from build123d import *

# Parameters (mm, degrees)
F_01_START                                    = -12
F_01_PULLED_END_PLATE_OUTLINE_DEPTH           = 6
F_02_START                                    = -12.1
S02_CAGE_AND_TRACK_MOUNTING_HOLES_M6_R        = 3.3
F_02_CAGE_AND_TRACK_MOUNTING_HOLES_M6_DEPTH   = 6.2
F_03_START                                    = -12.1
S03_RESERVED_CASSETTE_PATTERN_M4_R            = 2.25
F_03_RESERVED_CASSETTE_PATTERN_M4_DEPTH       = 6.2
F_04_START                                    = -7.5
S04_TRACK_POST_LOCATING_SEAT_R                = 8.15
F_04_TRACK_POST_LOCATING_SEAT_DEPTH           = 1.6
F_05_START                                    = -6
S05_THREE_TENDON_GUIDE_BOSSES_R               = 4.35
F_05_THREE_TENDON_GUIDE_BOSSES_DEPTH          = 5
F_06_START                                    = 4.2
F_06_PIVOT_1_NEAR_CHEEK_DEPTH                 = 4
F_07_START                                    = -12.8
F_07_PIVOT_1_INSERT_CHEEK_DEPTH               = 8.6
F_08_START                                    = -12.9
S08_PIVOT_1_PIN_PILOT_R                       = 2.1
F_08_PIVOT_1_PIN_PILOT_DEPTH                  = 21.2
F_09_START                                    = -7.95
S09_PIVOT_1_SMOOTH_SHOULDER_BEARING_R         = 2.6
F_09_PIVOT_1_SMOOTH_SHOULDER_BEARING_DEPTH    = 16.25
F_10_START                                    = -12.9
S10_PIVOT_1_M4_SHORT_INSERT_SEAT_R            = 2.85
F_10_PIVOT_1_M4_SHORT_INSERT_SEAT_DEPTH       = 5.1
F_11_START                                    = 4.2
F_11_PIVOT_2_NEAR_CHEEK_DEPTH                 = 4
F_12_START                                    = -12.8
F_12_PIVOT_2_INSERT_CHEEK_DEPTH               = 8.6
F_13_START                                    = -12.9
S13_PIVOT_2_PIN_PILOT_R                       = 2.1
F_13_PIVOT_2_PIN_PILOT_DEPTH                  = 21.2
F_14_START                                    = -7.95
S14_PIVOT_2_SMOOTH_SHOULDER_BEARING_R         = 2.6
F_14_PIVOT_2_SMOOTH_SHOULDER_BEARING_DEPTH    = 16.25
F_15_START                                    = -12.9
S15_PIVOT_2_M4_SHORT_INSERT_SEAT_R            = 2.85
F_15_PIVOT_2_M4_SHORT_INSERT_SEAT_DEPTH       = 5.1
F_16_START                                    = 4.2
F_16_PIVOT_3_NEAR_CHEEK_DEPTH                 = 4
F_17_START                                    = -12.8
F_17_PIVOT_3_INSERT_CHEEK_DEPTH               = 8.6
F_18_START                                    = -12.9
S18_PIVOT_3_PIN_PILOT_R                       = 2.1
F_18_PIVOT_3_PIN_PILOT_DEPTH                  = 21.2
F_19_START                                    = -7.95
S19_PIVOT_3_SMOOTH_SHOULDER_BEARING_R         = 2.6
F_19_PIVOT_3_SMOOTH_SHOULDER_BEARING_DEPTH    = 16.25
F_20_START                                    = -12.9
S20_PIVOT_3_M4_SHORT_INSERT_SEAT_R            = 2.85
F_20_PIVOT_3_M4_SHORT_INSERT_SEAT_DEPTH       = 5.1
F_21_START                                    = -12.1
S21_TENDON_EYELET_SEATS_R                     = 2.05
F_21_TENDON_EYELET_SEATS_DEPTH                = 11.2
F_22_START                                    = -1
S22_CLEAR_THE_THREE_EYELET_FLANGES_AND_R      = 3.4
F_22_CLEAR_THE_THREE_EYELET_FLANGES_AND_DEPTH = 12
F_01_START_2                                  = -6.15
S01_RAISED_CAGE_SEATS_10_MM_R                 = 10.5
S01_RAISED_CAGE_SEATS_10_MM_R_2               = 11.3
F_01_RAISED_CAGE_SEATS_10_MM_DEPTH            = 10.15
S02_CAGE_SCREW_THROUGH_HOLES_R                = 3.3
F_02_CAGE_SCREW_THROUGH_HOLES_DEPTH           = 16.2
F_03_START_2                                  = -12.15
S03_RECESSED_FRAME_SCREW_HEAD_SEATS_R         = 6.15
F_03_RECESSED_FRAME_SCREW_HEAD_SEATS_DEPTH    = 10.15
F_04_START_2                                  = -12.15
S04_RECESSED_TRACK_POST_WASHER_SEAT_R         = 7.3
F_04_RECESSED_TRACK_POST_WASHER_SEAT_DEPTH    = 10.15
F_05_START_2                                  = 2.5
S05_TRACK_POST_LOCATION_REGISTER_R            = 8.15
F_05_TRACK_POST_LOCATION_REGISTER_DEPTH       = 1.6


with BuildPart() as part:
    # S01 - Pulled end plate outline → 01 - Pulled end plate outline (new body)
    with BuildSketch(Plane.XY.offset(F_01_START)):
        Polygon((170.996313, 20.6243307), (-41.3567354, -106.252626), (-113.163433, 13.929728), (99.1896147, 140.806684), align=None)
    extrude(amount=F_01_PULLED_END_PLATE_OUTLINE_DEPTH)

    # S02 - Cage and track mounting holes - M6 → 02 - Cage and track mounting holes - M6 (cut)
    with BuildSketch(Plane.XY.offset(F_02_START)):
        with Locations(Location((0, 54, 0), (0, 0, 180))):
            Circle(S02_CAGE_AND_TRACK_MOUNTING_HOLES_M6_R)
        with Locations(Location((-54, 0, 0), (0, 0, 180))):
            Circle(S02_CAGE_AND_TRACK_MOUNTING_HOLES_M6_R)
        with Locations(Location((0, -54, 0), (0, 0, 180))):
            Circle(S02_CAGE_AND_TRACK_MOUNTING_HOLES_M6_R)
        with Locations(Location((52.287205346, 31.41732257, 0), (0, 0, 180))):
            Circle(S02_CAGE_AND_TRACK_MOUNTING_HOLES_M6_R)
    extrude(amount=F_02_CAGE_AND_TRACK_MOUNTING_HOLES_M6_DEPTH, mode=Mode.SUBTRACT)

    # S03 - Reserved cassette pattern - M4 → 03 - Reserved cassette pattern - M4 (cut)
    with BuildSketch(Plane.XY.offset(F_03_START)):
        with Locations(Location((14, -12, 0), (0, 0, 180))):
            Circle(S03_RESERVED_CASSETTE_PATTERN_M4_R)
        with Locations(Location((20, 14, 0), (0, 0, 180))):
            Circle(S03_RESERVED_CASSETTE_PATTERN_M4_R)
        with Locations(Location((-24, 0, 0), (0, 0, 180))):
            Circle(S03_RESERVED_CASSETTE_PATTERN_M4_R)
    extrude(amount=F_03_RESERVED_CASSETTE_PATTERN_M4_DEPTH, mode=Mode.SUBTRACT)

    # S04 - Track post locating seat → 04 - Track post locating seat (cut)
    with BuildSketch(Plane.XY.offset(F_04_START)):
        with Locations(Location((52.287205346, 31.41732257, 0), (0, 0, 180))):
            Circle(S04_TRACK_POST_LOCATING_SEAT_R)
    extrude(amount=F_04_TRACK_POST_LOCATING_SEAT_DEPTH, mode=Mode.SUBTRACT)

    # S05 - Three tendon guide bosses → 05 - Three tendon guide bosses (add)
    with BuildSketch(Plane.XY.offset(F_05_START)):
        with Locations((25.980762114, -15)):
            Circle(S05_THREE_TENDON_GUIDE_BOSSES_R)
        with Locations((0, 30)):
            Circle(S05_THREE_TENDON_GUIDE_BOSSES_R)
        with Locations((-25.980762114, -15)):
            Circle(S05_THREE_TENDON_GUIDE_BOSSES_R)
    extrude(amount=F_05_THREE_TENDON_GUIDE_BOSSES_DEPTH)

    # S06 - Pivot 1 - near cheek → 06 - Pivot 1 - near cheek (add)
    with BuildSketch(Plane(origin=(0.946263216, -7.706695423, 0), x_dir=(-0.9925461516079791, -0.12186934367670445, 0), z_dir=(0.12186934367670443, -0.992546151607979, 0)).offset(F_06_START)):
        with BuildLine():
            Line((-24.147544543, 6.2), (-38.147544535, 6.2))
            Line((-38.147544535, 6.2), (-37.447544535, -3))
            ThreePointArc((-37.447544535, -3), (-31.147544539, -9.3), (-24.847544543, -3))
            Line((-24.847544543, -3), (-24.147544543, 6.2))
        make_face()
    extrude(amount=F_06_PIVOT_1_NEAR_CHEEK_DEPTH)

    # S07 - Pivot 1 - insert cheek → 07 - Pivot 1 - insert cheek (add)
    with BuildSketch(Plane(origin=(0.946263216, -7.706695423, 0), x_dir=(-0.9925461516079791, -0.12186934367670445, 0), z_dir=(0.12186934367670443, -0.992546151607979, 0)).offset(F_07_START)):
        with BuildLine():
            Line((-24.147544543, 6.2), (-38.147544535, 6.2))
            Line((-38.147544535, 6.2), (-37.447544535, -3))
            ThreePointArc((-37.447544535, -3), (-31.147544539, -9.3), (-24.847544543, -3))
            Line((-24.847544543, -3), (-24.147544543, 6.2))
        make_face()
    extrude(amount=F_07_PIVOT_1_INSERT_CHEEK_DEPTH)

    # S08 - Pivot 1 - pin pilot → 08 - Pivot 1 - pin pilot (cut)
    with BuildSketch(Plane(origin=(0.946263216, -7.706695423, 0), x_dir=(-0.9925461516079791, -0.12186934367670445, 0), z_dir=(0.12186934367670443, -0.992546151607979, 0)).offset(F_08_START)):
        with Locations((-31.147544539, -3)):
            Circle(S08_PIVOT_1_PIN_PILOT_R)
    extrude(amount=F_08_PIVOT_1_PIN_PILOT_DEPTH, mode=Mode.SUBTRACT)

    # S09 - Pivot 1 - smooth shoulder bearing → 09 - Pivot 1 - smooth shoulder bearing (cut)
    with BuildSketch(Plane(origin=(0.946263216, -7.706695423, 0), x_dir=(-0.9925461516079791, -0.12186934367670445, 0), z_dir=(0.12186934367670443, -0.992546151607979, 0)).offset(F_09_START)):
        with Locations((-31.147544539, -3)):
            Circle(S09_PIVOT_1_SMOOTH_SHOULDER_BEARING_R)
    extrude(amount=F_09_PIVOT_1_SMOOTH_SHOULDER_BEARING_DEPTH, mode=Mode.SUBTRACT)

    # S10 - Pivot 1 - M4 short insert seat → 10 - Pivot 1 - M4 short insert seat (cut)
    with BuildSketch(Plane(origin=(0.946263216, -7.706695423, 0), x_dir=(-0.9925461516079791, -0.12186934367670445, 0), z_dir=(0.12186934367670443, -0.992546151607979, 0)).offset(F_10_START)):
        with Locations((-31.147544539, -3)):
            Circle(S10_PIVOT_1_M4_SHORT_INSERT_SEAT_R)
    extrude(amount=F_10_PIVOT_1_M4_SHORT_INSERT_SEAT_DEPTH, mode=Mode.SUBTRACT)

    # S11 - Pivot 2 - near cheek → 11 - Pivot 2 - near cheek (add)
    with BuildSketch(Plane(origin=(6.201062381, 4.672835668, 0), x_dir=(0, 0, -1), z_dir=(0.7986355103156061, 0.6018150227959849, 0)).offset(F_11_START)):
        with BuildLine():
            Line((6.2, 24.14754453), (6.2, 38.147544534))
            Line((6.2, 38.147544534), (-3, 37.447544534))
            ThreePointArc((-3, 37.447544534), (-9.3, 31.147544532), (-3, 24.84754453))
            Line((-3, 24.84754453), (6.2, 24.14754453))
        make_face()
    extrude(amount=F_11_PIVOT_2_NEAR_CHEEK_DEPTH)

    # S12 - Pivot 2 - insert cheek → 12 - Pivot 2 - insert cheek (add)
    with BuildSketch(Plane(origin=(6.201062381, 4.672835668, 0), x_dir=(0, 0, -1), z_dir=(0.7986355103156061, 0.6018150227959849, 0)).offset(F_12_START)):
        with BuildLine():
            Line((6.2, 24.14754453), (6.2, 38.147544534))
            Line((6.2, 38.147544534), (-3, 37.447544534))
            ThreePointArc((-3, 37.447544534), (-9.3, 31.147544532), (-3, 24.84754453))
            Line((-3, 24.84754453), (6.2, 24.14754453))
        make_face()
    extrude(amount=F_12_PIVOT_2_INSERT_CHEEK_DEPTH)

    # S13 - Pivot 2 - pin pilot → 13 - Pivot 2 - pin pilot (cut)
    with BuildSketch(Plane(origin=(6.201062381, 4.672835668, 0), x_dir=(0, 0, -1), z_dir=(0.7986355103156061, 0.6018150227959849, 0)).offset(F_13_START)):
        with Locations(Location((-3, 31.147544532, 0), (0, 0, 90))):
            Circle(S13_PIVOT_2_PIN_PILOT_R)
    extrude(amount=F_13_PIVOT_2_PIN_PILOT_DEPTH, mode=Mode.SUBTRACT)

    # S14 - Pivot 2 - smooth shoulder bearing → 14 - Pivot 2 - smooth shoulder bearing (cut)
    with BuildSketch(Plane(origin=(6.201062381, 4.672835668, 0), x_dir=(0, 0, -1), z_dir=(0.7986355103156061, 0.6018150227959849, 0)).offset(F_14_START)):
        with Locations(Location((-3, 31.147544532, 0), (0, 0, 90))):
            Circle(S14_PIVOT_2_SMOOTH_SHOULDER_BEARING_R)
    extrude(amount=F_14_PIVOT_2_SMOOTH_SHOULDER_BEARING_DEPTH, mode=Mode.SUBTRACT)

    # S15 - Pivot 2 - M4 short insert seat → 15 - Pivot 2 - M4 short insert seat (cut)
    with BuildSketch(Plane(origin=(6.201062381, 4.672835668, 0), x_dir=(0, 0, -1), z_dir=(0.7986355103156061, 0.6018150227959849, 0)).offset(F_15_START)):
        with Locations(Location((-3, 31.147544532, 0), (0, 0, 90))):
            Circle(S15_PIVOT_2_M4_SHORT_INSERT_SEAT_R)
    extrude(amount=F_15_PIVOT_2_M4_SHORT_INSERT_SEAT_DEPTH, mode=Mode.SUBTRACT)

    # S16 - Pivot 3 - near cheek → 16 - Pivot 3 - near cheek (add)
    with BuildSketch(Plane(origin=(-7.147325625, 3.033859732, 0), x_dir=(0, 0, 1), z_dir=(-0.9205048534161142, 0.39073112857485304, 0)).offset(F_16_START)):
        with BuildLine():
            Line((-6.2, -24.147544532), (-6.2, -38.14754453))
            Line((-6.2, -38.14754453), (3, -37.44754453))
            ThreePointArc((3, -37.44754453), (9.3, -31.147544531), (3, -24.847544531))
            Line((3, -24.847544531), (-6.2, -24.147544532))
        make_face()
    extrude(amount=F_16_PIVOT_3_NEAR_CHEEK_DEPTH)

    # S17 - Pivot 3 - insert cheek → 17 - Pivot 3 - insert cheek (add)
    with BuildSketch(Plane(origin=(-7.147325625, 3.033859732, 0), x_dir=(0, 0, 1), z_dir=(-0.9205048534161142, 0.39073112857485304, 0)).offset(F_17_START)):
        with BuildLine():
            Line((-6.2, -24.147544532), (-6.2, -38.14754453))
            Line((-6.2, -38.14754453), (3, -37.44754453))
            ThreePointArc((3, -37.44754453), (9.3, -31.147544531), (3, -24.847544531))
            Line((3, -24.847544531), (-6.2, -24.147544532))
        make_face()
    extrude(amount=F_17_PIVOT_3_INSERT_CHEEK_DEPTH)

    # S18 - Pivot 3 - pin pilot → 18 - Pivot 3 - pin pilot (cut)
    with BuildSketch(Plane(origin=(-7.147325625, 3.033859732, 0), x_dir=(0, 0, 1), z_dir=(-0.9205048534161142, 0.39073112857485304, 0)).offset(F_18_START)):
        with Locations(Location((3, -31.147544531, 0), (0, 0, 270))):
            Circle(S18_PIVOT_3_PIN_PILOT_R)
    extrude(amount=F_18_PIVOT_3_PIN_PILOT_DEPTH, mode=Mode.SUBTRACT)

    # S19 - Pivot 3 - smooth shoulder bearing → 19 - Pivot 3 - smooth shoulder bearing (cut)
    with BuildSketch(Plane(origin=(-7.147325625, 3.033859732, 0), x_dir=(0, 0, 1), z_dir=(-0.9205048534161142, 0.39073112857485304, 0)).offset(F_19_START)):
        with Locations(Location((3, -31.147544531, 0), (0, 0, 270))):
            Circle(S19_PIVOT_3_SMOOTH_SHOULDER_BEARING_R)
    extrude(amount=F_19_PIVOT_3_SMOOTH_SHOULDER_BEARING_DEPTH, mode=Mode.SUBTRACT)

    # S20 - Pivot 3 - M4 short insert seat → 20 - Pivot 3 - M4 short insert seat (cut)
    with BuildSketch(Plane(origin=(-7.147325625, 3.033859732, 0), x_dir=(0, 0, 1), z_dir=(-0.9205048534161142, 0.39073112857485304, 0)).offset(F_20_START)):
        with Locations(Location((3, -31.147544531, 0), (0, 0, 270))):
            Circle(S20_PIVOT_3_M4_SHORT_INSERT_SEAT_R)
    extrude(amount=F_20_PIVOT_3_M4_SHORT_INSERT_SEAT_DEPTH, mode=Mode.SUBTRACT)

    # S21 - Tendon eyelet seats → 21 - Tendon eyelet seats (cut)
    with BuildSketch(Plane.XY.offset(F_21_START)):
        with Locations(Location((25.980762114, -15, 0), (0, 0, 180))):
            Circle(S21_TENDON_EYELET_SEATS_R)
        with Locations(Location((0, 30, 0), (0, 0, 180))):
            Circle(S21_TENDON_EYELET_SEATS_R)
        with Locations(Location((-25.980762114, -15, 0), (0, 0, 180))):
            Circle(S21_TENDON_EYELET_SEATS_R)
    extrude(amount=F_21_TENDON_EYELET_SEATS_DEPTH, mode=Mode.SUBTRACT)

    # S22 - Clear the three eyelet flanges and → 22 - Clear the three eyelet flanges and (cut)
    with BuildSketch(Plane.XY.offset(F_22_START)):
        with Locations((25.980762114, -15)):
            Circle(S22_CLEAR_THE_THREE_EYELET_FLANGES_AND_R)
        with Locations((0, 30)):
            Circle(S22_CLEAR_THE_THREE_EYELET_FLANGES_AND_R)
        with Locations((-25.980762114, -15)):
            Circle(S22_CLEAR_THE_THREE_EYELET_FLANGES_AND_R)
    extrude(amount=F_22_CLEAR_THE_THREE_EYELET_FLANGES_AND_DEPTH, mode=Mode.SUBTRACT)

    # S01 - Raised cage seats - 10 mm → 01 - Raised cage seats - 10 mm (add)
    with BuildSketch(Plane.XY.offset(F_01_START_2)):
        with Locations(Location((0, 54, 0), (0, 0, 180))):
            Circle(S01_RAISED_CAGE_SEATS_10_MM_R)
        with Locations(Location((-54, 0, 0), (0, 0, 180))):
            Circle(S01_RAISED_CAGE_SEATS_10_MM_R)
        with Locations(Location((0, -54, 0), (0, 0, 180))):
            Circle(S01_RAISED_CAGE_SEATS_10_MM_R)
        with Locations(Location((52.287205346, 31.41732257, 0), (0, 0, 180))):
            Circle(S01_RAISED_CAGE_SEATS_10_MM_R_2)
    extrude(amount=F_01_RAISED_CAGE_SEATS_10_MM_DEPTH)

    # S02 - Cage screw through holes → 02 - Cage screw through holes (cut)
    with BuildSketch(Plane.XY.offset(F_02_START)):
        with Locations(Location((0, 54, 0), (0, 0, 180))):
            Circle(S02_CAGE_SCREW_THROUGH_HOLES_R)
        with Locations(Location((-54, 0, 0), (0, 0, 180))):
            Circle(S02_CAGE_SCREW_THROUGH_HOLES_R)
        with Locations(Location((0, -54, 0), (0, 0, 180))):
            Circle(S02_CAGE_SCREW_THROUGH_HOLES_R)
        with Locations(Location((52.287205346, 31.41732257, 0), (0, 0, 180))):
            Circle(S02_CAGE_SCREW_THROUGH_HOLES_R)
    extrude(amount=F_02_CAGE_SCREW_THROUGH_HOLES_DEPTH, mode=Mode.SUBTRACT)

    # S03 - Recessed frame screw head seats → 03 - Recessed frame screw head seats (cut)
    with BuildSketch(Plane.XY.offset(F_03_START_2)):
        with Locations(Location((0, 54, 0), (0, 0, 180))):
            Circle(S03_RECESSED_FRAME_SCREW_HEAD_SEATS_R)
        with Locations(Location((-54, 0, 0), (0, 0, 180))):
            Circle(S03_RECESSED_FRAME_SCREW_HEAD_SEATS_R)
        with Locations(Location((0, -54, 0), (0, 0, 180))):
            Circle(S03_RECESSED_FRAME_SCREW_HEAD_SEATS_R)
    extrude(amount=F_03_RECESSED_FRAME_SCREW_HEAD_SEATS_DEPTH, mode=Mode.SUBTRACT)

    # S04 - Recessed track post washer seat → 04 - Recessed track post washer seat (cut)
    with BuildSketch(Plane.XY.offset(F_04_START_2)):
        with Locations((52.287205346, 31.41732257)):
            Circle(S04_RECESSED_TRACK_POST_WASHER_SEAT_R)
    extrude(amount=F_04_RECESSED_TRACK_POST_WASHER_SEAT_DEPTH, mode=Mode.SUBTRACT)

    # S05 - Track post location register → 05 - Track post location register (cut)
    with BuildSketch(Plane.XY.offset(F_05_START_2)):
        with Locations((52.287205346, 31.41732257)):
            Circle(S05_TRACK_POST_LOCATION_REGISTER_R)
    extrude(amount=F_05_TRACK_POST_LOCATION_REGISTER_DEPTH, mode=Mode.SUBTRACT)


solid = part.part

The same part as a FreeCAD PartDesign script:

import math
import FreeCAD as App
import Part
import Sketcher
from FreeCAD import Vector


def add_polygon(sketch, points):
    """Adds a closed chain of lines whose ends are joined by coincident constraints."""
    first, n = sketch.GeometryCount, len(points)
    for a, b in zip(points, points[1:] + points[:1]):
        sketch.addGeometry(Part.LineSegment(App.Vector(*a, 0), App.Vector(*b, 0)), False)
    for i in range(n):
        sketch.addConstraint(Sketcher.Constraint("Coincident", first + i, 2, first + (i + 1) % n, 1))

doc = App.newDocument("Part")
body = doc.addObject("PartDesign::Body", "Body")

# Sketch on XY plane
sketch1 = doc.addObject("Sketcher::SketchObject", "Sketch")
body.addObject(sketch1)
sketch1.AttachmentSupport = (doc.XY_Plane, [""])
sketch1.MapMode = "FlatFace"
sketch1.AttachmentOffset = App.Placement(Vector(0, 0, -12), App.Rotation())
add_polygon(sketch1, [(-41.356735, -106.252626), (170.996313, 20.624331), (99.189615, 140.806684), (-113.163433, 13.929728)])  # lines 0-3
sketch1.addConstraint([
    Sketcher.Constraint("Perpendicular", 0, 1),
    Sketcher.Constraint("Perpendicular", 1, 2),
    Sketcher.Constraint("Perpendicular", 2, 3),
    Sketcher.Constraint("Distance", 1, 140.0),
    Sketcher.Constraint("DistanceX", 1, 2, 0, 2, 71.806698),
    Sketcher.Constraint("DistanceY", -1, 1, 0, 2, 20.624331),
    Sketcher.Constraint("DistanceY", -1, 1, 2, 2, 13.929728),
    Sketcher.Constraint("DistanceX", -1, 1, 0, 2, 170.996313),
])
pad1 = doc.addObject("PartDesign::Pad", "Pad")
body.addObject(pad1)
pad1.Profile = sketch1
pad1.Length = 6

# Sketch on XY plane
sketch2 = doc.addObject("Sketcher::SketchObject", "Sketch001")
body.addObject(sketch2)
sketch2.AttachmentSupport = (doc.XY_Plane, [""])
sketch2.MapMode = "FlatFace"
sketch2.AttachmentOffset = App.Placement(Vector(0, 0, -12.1), App.Rotation())
sketch2.addGeometry([
    Part.Circle(Vector(0, 54, 0), Vector(0, 0, 1), 3.3),
    Part.Circle(Vector(-54, 0, 0), Vector(0, 0, 1), 3.3),
    Part.Circle(Vector(0, -54, 0), Vector(0, 0, 1), 3.3),
    Part.Circle(Vector(52.287205, 31.417323, 0), Vector(0, 0, 1), 3.3),
], False)
sketch2.addConstraint([
    Sketcher.Constraint("Equal", 0, 1),
    Sketcher.Constraint("Equal", 1, 2),
    Sketcher.Constraint("Equal", 2, 3),
    Sketcher.Constraint("Symmetric", 0, 3, 2, 3, -1, 1),
    Sketcher.Constraint("PointOnObject", 0, 3, -2),
    Sketcher.Constraint("PointOnObject", 1, 3, -1),
    Sketcher.Constraint("Diameter", 0, 6.6),
    Sketcher.Constraint("DistanceY", -1, 1, 0, 3, 54.0),
    Sketcher.Constraint("DistanceX", 1, 3, -1, 1, 54.0),
    Sketcher.Constraint("DistanceX", -1, 1, 3, 3, 52.287205),
    Sketcher.Constraint("DistanceY", -1, 1, 3, 3, 31.417323),
])
pocket1 = doc.addObject("PartDesign::Pocket", "Pocket")
body.addObject(pocket1)
pocket1.Profile = sketch2
pocket1.Length = 6.2
pocket1.Reversed = True

# Sketch on XY plane
sketch3 = doc.addObject("Sketcher::SketchObject", "Sketch002")
body.addObject(sketch3)
sketch3.AttachmentSupport = (doc.XY_Plane, [""])
sketch3.MapMode = "FlatFace"
sketch3.AttachmentOffset = App.Placement(Vector(0, 0, -12.1), App.Rotation())
sketch3.addGeometry([
    Part.Circle(Vector(14, -12, 0), Vector(0, 0, 1), 2.25),
    Part.Circle(Vector(20, 14, 0), Vector(0, 0, 1), 2.25),
    Part.Circle(Vector(-24, 0, 0), Vector(0, 0, 1), 2.25),
], False)
sketch3.addConstraint([
    Sketcher.Constraint("Equal", 0, 1),
    Sketcher.Constraint("Equal", 1, 2),
    Sketcher.Constraint("PointOnObject", 2, 3, -1),
    Sketcher.Constraint("Diameter", 0, 4.5),
    Sketcher.Constraint("DistanceX", -1, 1, 0, 3, 14.0),
    Sketcher.Constraint("DistanceY", 0, 3, -1, 1, 12.0),
    Sketcher.Constraint("DistanceX", -1, 1, 1, 3, 20.0),
    Sketcher.Constraint("DistanceY", -1, 1, 1, 3, 14.0),
    Sketcher.Constraint("DistanceX", 2, 3, -1, 1, 24.0),
])
pocket2 = doc.addObject("PartDesign::Pocket", "Pocket001")
body.addObject(pocket2)
pocket2.Profile = sketch3
pocket2.Length = 6.2
pocket2.Reversed = True

# Sketch on XY plane
sketch4 = doc.addObject("Sketcher::SketchObject", "Sketch003")
body.addObject(sketch4)
sketch4.AttachmentSupport = (doc.XY_Plane, [""])
sketch4.MapMode = "FlatFace"
sketch4.AttachmentOffset = App.Placement(Vector(0, 0, -7.5), App.Rotation())
sketch4.addGeometry(Part.Circle(Vector(52.287205, 31.417323, 0), Vector(0, 0, 1), 8.15), False)
sketch4.addConstraint([
    Sketcher.Constraint("Diameter", 0, 16.3),
    Sketcher.Constraint("DistanceX", -1, 1, 0, 3, 52.287205),
    Sketcher.Constraint("DistanceY", -1, 1, 0, 3, 31.417323),
])
pocket3 = doc.addObject("PartDesign::Pocket", "Pocket002")
body.addObject(pocket3)
pocket3.Profile = sketch4
pocket3.Length = 1.6
pocket3.Reversed = True

# Sketch on XY plane
sketch5 = doc.addObject("Sketcher::SketchObject", "Sketch004")
body.addObject(sketch5)
sketch5.AttachmentSupport = (doc.XY_Plane, [""])
sketch5.MapMode = "FlatFace"
sketch5.AttachmentOffset = App.Placement(Vector(0, 0, -6), App.Rotation())
sketch5.addGeometry([
    Part.Circle(Vector(25.980762, -15, 0), Vector(0, 0, 1), 4.35),
    Part.Circle(Vector(0, 30, 0), Vector(0, 0, 1), 4.35),
    Part.Circle(Vector(-25.980762, -15, 0), Vector(0, 0, 1), 4.35),
], False)
sketch5.addConstraint([
    Sketcher.Constraint("Equal", 0, 1),
    Sketcher.Constraint("Equal", 1, 2),
    Sketcher.Constraint("Symmetric", 0, 3, 2, 3, -2),
    Sketcher.Constraint("PointOnObject", 1, 3, -2),
    Sketcher.Constraint("Diameter", 0, 8.7),
    Sketcher.Constraint("DistanceY", 0, 3, -1, 1, 15.0),
    Sketcher.Constraint("DistanceY", -1, 1, 1, 3, 30.0),
    Sketcher.Constraint("DistanceX", -1, 1, 0, 3, 25.980762),
])
pad2 = doc.addObject("PartDesign::Pad", "Pad001")
body.addObject(pad2)
pad2.Profile = sketch5
pad2.Length = 5

# Sketch on an angled plane
sketch6 = doc.addObject("Sketcher::SketchObject", "Sketch005")
body.addObject(sketch6)
sketch6.Placement = App.Placement(Vector(1.458114, -11.875389, 0), App.Rotation(Vector(-0.992546152, -0.121869344, 0), Vector(0, 0, -1.000000001), Vector(0.121869344, -0.992546152, 0), "ZXY"))
sketch6.addGeometry([
    Part.LineSegment(Vector(-24.147545, 6.2, 0), Vector(-38.147545, 6.2, 0)),
    Part.LineSegment(Vector(-38.147545, 6.2, 0), Vector(-37.447545, -3, 0)),
    Part.ArcOfCircle(Part.Circle(Vector(-31.147545, -3, 0), Vector(0, 0, 1), 6.3), math.radians(180), math.radians(360)),
    Part.LineSegment(Vector(-24.847545, -3, 0), Vector(-24.147545, 6.2, 0)),
], False)
sketch6.addConstraint([
    Sketcher.Constraint("Coincident", 0, 2, 1, 1),
    Sketcher.Constraint("Coincident", 1, 2, 2, 1),
    Sketcher.Constraint("Coincident", 2, 2, 3, 1),
    Sketcher.Constraint("Coincident", 3, 2, 0, 1),
    Sketcher.Constraint("Horizontal", 0),
    Sketcher.Constraint("Horizontal", 2, 3, 1, 2),
    Sketcher.Constraint("Horizontal", 1, 2, 2, 2),
    Sketcher.Constraint("Equal", 1, 3),
    Sketcher.Constraint("Radius", 2, 6.3),
    Sketcher.Constraint("DistanceX", 0, 2, 0, 1, 14.0),
    Sketcher.Constraint("DistanceY", 2, 3, -1, 1, 3.0),
    Sketcher.Constraint("DistanceY", -1, 1, 0, 2, 6.2),
    Sketcher.Constraint("DistanceX", 2, 3, -1, 1, 31.147545),
])
pad3 = doc.addObject("PartDesign::Pad", "Pad002")
body.addObject(pad3)
pad3.Profile = sketch6
pad3.Length = 4

# Sketch on an angled plane
sketch7 = doc.addObject("Sketcher::SketchObject", "Sketch006")
body.addObject(sketch7)
sketch7.Placement = App.Placement(Vector(-0.613664, 4.997895, 0), App.Rotation(Vector(-0.992546152, -0.121869344, 0), Vector(0, 0, -1.000000001), Vector(0.121869344, -0.992546152, 0), "ZXY"))
sketch7.addGeometry([
    Part.LineSegment(Vector(-24.147545, 6.2, 0), Vector(-38.147545, 6.2, 0)),
    Part.LineSegment(Vector(-38.147545, 6.2, 0), Vector(-37.447545, -3, 0)),
    Part.ArcOfCircle(Part.Circle(Vector(-31.147545, -3, 0), Vector(0, 0, 1), 6.3), math.radians(180), math.radians(360)),
    Part.LineSegment(Vector(-24.847545, -3, 0), Vector(-24.147545, 6.2, 0)),
], False)
sketch7.addConstraint([
    Sketcher.Constraint("Coincident", 0, 2, 1, 1),
    Sketcher.Constraint("Coincident", 1, 2, 2, 1),
    Sketcher.Constraint("Coincident", 2, 2, 3, 1),
    Sketcher.Constraint("Coincident", 3, 2, 0, 1),
    Sketcher.Constraint("Horizontal", 0),
    Sketcher.Constraint("Horizontal", 2, 3, 1, 2),
    Sketcher.Constraint("Horizontal", 1, 2, 2, 2),
    Sketcher.Constraint("Equal", 1, 3),
    Sketcher.Constraint("Radius", 2, 6.3),
    Sketcher.Constraint("DistanceX", 0, 2, 0, 1, 14.0),
    Sketcher.Constraint("DistanceY", 2, 3, -1, 1, 3.0),
    Sketcher.Constraint("DistanceY", -1, 1, 0, 2, 6.2),
    Sketcher.Constraint("DistanceX", 2, 3, -1, 1, 31.147545),
])
pad4 = doc.addObject("PartDesign::Pad", "Pad003")
body.addObject(pad4)
pad4.Profile = sketch7
pad4.Length = 8.6

# Sketch on an angled plane
sketch8 = doc.addObject("Sketcher::SketchObject", "Sketch007")
body.addObject(sketch8)
sketch8.Placement = App.Placement(Vector(-0.625851, 5.09715, 0), App.Rotation(Vector(-0.992546152, -0.121869344, 0), Vector(0, 0, -1.000000001), Vector(0.121869344, -0.992546152, 0), "ZXY"))
sketch8.addGeometry(Part.Circle(Vector(-31.147545, -3, 0), Vector(0, 0, 1), 2.1), False)
sketch8.addConstraint([
    Sketcher.Constraint("Diameter", 0, 4.2),
    Sketcher.Constraint("DistanceY", 0, 3, -1, 1, 3.0),
    Sketcher.Constraint("DistanceX", 0, 3, -1, 1, 31.147545),
])
pocket4 = doc.addObject("PartDesign::Pocket", "Pocket003")
body.addObject(pocket4)
pocket4.Profile = sketch8
pocket4.Length = 21.2
pocket4.Reversed = True

# Sketch on an angled plane
sketch9 = doc.addObject("Sketcher::SketchObject", "Sketch008")
body.addObject(sketch9)
sketch9.Placement = App.Placement(Vector(-0.022598, 0.184046, 0), App.Rotation(Vector(-0.992546152, -0.121869344, 0), Vector(0, 0, -1.000000001), Vector(0.121869344, -0.992546152, 0), "ZXY"))
sketch9.addGeometry(Part.Circle(Vector(-31.147545, -3, 0), Vector(0, 0, 1), 2.6), False)
sketch9.addConstraint([
    Sketcher.Constraint("Diameter", 0, 5.2),
    Sketcher.Constraint("DistanceY", 0, 3, -1, 1, 3.0),
    Sketcher.Constraint("DistanceX", 0, 3, -1, 1, 31.147545),
])
pocket5 = doc.addObject("PartDesign::Pocket", "Pocket004")
body.addObject(pocket5)
pocket5.Profile = sketch9
pocket5.Length = 16.25
pocket5.Reversed = True

# Sketch on an angled plane
sketch10 = doc.addObject("Sketcher::SketchObject", "Sketch009")
body.addObject(sketch10)
sketch10.Placement = App.Placement(Vector(-0.625851, 5.09715, 0), App.Rotation(Vector(-0.992546152, -0.121869344, 0), Vector(0, 0, -1.000000001), Vector(0.121869344, -0.992546152, 0), "ZXY"))
sketch10.addGeometry(Part.Circle(Vector(-31.147545, -3, 0), Vector(0, 0, 1), 2.85), False)
sketch10.addConstraint([
    Sketcher.Constraint("Diameter", 0, 5.7),
    Sketcher.Constraint("DistanceY", 0, 3, -1, 1, 3.0),
    Sketcher.Constraint("DistanceX", 0, 3, -1, 1, 31.147545),
])
pocket6 = doc.addObject("PartDesign::Pocket", "Pocket005")
body.addObject(pocket6)
pocket6.Profile = sketch10
pocket6.Length = 5.1
pocket6.Reversed = True

# Sketch on an angled plane
sketch11 = doc.addObject("Sketcher::SketchObject", "Sketch010")
body.addObject(sketch11)
sketch11.Placement = App.Placement(Vector(9.555332, 7.200459, 0), App.Rotation(Vector(0, 0, -1), Vector(-0.601815023, 0.79863551, 0), Vector(0.79863551, 0.601815023, 0), "ZXY"))
sketch11.addGeometry([
    Part.LineSegment(Vector(6.2, 24.147545, 0), Vector(6.2, 38.147545, 0)),
    Part.LineSegment(Vector(6.2, 38.147545, 0), Vector(-3, 37.447545, 0)),
    Part.ArcOfCircle(Part.Circle(Vector(-3, 31.147545, 0), Vector(0, 0, 1), 6.3), math.radians(90), math.radians(270)),
    Part.LineSegment(Vector(-3, 24.847545, 0), Vector(6.2, 24.147545, 0)),
], False)
sketch11.addConstraint([
    Sketcher.Constraint("Coincident", 0, 2, 1, 1),
    Sketcher.Constraint("Coincident", 1, 2, 2, 1),
    Sketcher.Constraint("Coincident", 2, 2, 3, 1),
    Sketcher.Constraint("Coincident", 3, 2, 0, 1),
    Sketcher.Constraint("Vertical", 0),
    Sketcher.Constraint("Vertical", 2, 3, 1, 2),
    Sketcher.Constraint("Vertical", 1, 2, 2, 2),
    Sketcher.Constraint("Equal", 1, 3),
    Sketcher.Constraint("Radius", 2, 6.3),
    Sketcher.Constraint("DistanceY", 0, 1, 0, 2, 14.0),
    Sketcher.Constraint("DistanceX", 2, 3, -1, 1, 3.0),
    Sketcher.Constraint("DistanceX", -1, 1, 0, 2, 6.2),
    Sketcher.Constraint("DistanceY", -1, 1, 2, 3, 31.147545),
])
pad5 = doc.addObject("PartDesign::Pad", "Pad004")
body.addObject(pad5)
pad5.Profile = sketch11
pad5.Length = 4

# Sketch on an angled plane
sketch12 = doc.addObject("Sketcher::SketchObject", "Sketch011")
body.addObject(sketch12)
sketch12.Placement = App.Placement(Vector(-4.021472, -3.030397, 0), App.Rotation(Vector(0, 0, -1), Vector(-0.601815023, 0.79863551, 0), Vector(0.79863551, 0.601815023, 0), "ZXY"))
sketch12.addGeometry([
    Part.LineSegment(Vector(6.2, 24.147545, 0), Vector(6.2, 38.147545, 0)),
    Part.LineSegment(Vector(6.2, 38.147545, 0), Vector(-3, 37.447545, 0)),
    Part.ArcOfCircle(Part.Circle(Vector(-3, 31.147545, 0), Vector(0, 0, 1), 6.3), math.radians(90), math.radians(270)),
    Part.LineSegment(Vector(-3, 24.847545, 0), Vector(6.2, 24.147545, 0)),
], False)
sketch12.addConstraint([
    Sketcher.Constraint("Coincident", 0, 2, 1, 1),
    Sketcher.Constraint("Coincident", 1, 2, 2, 1),
    Sketcher.Constraint("Coincident", 2, 2, 3, 1),
    Sketcher.Constraint("Coincident", 3, 2, 0, 1),
    Sketcher.Constraint("Vertical", 0),
    Sketcher.Constraint("Vertical", 2, 3, 1, 2),
    Sketcher.Constraint("Vertical", 1, 2, 2, 2),
    Sketcher.Constraint("Equal", 1, 3),
    Sketcher.Constraint("Radius", 2, 6.3),
    Sketcher.Constraint("DistanceY", 0, 1, 0, 2, 14.0),
    Sketcher.Constraint("DistanceX", 2, 3, -1, 1, 3.0),
    Sketcher.Constraint("DistanceX", -1, 1, 0, 2, 6.2),
    Sketcher.Constraint("DistanceY", -1, 1, 2, 3, 31.147545),
])
pad6 = doc.addObject("PartDesign::Pad", "Pad005")
body.addObject(pad6)
pad6.Profile = sketch12
pad6.Length = 8.6

# Sketch on an angled plane
sketch13 = doc.addObject("Sketcher::SketchObject", "Sketch012")
body.addObject(sketch13)
sketch13.Placement = App.Placement(Vector(-4.101336, -3.090578, 0), App.Rotation(Vector(0, 0, -1), Vector(-0.601815023, 0.79863551, 0), Vector(0.79863551, 0.601815023, 0), "ZXY"))
sketch13.addGeometry(Part.Circle(Vector(-3, 31.147545, 0), Vector(0, 0, 1), 2.1), False)
sketch13.addConstraint([
    Sketcher.Constraint("Diameter", 0, 4.2),
    Sketcher.Constraint("DistanceX", 0, 3, -1, 1, 3.0),
    Sketcher.Constraint("DistanceY", -1, 1, 0, 3, 31.147545),
])
pocket7 = doc.addObject("PartDesign::Pocket", "Pocket006")
body.addObject(pocket7)
pocket7.Profile = sketch13
pocket7.Length = 21.2
pocket7.Reversed = True

# Sketch on an angled plane
sketch14 = doc.addObject("Sketcher::SketchObject", "Sketch013")
body.addObject(sketch14)
sketch14.Placement = App.Placement(Vector(-0.14809, -0.111594, 0), App.Rotation(Vector(0, 0, -1), Vector(-0.601815023, 0.79863551, 0), Vector(0.79863551, 0.601815023, 0), "ZXY"))
sketch14.addGeometry(Part.Circle(Vector(-3, 31.147545, 0), Vector(0, 0, 1), 2.6), False)
sketch14.addConstraint([
    Sketcher.Constraint("Diameter", 0, 5.2),
    Sketcher.Constraint("DistanceX", 0, 3, -1, 1, 3.0),
    Sketcher.Constraint("DistanceY", -1, 1, 0, 3, 31.147545),
])
pocket8 = doc.addObject("PartDesign::Pocket", "Pocket007")
body.addObject(pocket8)
pocket8.Profile = sketch14
pocket8.Length = 16.25
pocket8.Reversed = True

# Sketch on an angled plane
sketch15 = doc.addObject("Sketcher::SketchObject", "Sketch014")
body.addObject(sketch15)
sketch15.Placement = App.Placement(Vector(-4.101336, -3.090578, 0), App.Rotation(Vector(0, 0, -1), Vector(-0.601815023, 0.79863551, 0), Vector(0.79863551, 0.601815023, 0), "ZXY"))
sketch15.addGeometry(Part.Circle(Vector(-3, 31.147545, 0), Vector(0, 0, 1), 2.85), False)
sketch15.addConstraint([
    Sketcher.Constraint("Diameter", 0, 5.7),
    Sketcher.Constraint("DistanceX", 0, 3, -1, 1, 3.0),
    Sketcher.Constraint("DistanceY", -1, 1, 0, 3, 31.147545),
])
pocket9 = doc.addObject("PartDesign::Pocket", "Pocket008")
body.addObject(pocket9)
pocket9.Profile = sketch15
pocket9.Length = 5.1
pocket9.Reversed = True

# Sketch on an angled plane
sketch16 = doc.addObject("Sketcher::SketchObject", "Sketch015")
body.addObject(sketch16)
sketch16.Placement = App.Placement(Vector(-11.013446, 4.67493, 0), App.Rotation(Vector(0, 0, 1), Vector(0.390731129, 0.920504853, 0), Vector(-0.920504853, 0.390731129, 0), "ZXY"))
sketch16.addGeometry([
    Part.LineSegment(Vector(-6.2, -24.147545, 0), Vector(-6.2, -38.147545, 0)),
    Part.LineSegment(Vector(-6.2, -38.147545, 0), Vector(3, -37.447545, 0)),
    Part.ArcOfCircle(Part.Circle(Vector(3, -31.147545, 0), Vector(0, 0, 1), 6.3), math.radians(-90), math.radians(90)),
    Part.LineSegment(Vector(3, -24.847545, 0), Vector(-6.2, -24.147545, 0)),
], False)
sketch16.addConstraint([
    Sketcher.Constraint("Coincident", 0, 2, 1, 1),
    Sketcher.Constraint("Coincident", 1, 2, 2, 1),
    Sketcher.Constraint("Coincident", 2, 2, 3, 1),
    Sketcher.Constraint("Coincident", 3, 2, 0, 1),
    Sketcher.Constraint("Vertical", 0),
    Sketcher.Constraint("Vertical", 2, 3, 1, 2),
    Sketcher.Constraint("Vertical", 1, 2, 2, 2),
    Sketcher.Constraint("Equal", 1, 3),
    Sketcher.Constraint("Radius", 2, 6.3),
    Sketcher.Constraint("DistanceY", 0, 2, 0, 1, 14.0),
    Sketcher.Constraint("DistanceX", -1, 1, 2, 3, 3.0),
    Sketcher.Constraint("DistanceX", 0, 2, -1, 1, 6.2),
    Sketcher.Constraint("DistanceY", 2, 3, -1, 1, 31.147545),
])
pad7 = doc.addObject("PartDesign::Pad", "Pad006")
body.addObject(pad7)
pad7.Profile = sketch16
pad7.Length = 4

# Sketch on an angled plane
sketch17 = doc.addObject("Sketcher::SketchObject", "Sketch016")
body.addObject(sketch17)
sketch17.Placement = App.Placement(Vector(4.635136, -1.967499, 0), App.Rotation(Vector(0, 0, 1), Vector(0.390731129, 0.920504853, 0), Vector(-0.920504853, 0.390731129, 0), "ZXY"))
sketch17.addGeometry([
    Part.LineSegment(Vector(-6.2, -24.147545, 0), Vector(-6.2, -38.147545, 0)),
    Part.LineSegment(Vector(-6.2, -38.147545, 0), Vector(3, -37.447545, 0)),
    Part.ArcOfCircle(Part.Circle(Vector(3, -31.147545, 0), Vector(0, 0, 1), 6.3), math.radians(-90), math.radians(90)),
    Part.LineSegment(Vector(3, -24.847545, 0), Vector(-6.2, -24.147545, 0)),
], False)
sketch17.addConstraint([
    Sketcher.Constraint("Coincident", 0, 2, 1, 1),
    Sketcher.Constraint("Coincident", 1, 2, 2, 1),
    Sketcher.Constraint("Coincident", 2, 2, 3, 1),
    Sketcher.Constraint("Coincident", 3, 2, 0, 1),
    Sketcher.Constraint("Vertical", 0),
    Sketcher.Constraint("Vertical", 2, 3, 1, 2),
    Sketcher.Constraint("Vertical", 1, 2, 2, 2),
    Sketcher.Constraint("Equal", 1, 3),
    Sketcher.Constraint("Radius", 2, 6.3),
    Sketcher.Constraint("DistanceY", 0, 2, 0, 1, 14.0),
    Sketcher.Constraint("DistanceX", -1, 1, 2, 3, 3.0),
    Sketcher.Constraint("DistanceX", 0, 2, -1, 1, 6.2),
    Sketcher.Constraint("DistanceY", 2, 3, -1, 1, 31.147545),
])
pad8 = doc.addObject("PartDesign::Pad", "Pad007")
body.addObject(pad8)
pad8.Profile = sketch17
pad8.Length = 8.6

# Sketch on an angled plane
sketch18 = doc.addObject("Sketcher::SketchObject", "Sketch017")
body.addObject(sketch18)
sketch18.Placement = App.Placement(Vector(4.727187, -2.006572, 0), App.Rotation(Vector(0, 0, 1), Vector(0.390731129, 0.920504853, 0), Vector(-0.920504853, 0.390731129, 0), "ZXY"))
sketch18.addGeometry(Part.Circle(Vector(3, -31.147545, 0), Vector(0, 0, 1), 2.1), False)
sketch18.addConstraint([
    Sketcher.Constraint("Diameter", 0, 4.2),
    Sketcher.Constraint("DistanceX", -1, 1, 0, 3, 3.0),
    Sketcher.Constraint("DistanceY", 0, 3, -1, 1, 31.147545),
])
pocket10 = doc.addObject("PartDesign::Pocket", "Pocket009")
body.addObject(pocket10)
pocket10.Profile = sketch18
pocket10.Length = 21.2
pocket10.Reversed = True

# Sketch on an angled plane
sketch19 = doc.addObject("Sketcher::SketchObject", "Sketch018")
body.addObject(sketch19)
sketch19.Placement = App.Placement(Vector(0.170688, -0.072453, 0), App.Rotation(Vector(0, 0, 1), Vector(0.390731129, 0.920504853, 0), Vector(-0.920504853, 0.390731129, 0), "ZXY"))
sketch19.addGeometry(Part.Circle(Vector(3, -31.147545, 0), Vector(0, 0, 1), 2.6), False)
sketch19.addConstraint([
    Sketcher.Constraint("Diameter", 0, 5.2),
    Sketcher.Constraint("DistanceX", -1, 1, 0, 3, 3.0),
    Sketcher.Constraint("DistanceY", 0, 3, -1, 1, 31.147545),
])
pocket11 = doc.addObject("PartDesign::Pocket", "Pocket010")
body.addObject(pocket11)
pocket11.Profile = sketch19
pocket11.Length = 16.25
pocket11.Reversed = True

# Sketch on an angled plane
sketch20 = doc.addObject("Sketcher::SketchObject", "Sketch019")
body.addObject(sketch20)
sketch20.Placement = App.Placement(Vector(4.727187, -2.006572, 0), App.Rotation(Vector(0, 0, 1), Vector(0.390731129, 0.920504853, 0), Vector(-0.920504853, 0.390731129, 0), "ZXY"))
sketch20.addGeometry(Part.Circle(Vector(3, -31.147545, 0), Vector(0, 0, 1), 2.85), False)
sketch20.addConstraint([
    Sketcher.Constraint("Diameter", 0, 5.7),
    Sketcher.Constraint("DistanceX", -1, 1, 0, 3, 3.0),
    Sketcher.Constraint("DistanceY", 0, 3, -1, 1, 31.147545),
])
pocket12 = doc.addObject("PartDesign::Pocket", "Pocket011")
body.addObject(pocket12)
pocket12.Profile = sketch20
pocket12.Length = 5.1
pocket12.Reversed = True

# Sketch on XY plane
sketch21 = doc.addObject("Sketcher::SketchObject", "Sketch020")
body.addObject(sketch21)
sketch21.AttachmentSupport = (doc.XY_Plane, [""])
sketch21.MapMode = "FlatFace"
sketch21.AttachmentOffset = App.Placement(Vector(0, 0, -12.1), App.Rotation())
sketch21.addGeometry([
    Part.Circle(Vector(25.980762, -15, 0), Vector(0, 0, 1), 2.05),
    Part.Circle(Vector(0, 30, 0), Vector(0, 0, 1), 2.05),
    Part.Circle(Vector(-25.980762, -15, 0), Vector(0, 0, 1), 2.05),
], False)
sketch21.addConstraint([
    Sketcher.Constraint("Equal", 0, 1),
    Sketcher.Constraint("Equal", 1, 2),
    Sketcher.Constraint("Symmetric", 0, 3, 2, 3, -2),
    Sketcher.Constraint("PointOnObject", 1, 3, -2),
    Sketcher.Constraint("Diameter", 0, 4.1),
    Sketcher.Constraint("DistanceY", 0, 3, -1, 1, 15.0),
    Sketcher.Constraint("DistanceY", -1, 1, 1, 3, 30.0),
    Sketcher.Constraint("DistanceX", -1, 1, 0, 3, 25.980762),
])
pocket13 = doc.addObject("PartDesign::Pocket", "Pocket012")
body.addObject(pocket13)
pocket13.Profile = sketch21
pocket13.Length = 11.2
pocket13.Reversed = True

# Sketch on XY plane
sketch22 = doc.addObject("Sketcher::SketchObject", "Sketch021")
body.addObject(sketch22)
sketch22.AttachmentSupport = (doc.XY_Plane, [""])
sketch22.MapMode = "FlatFace"
sketch22.AttachmentOffset = App.Placement(Vector(0, 0, -1), App.Rotation())
sketch22.addGeometry([
    Part.Circle(Vector(25.980762, -15, 0), Vector(0, 0, 1), 3.4),
    Part.Circle(Vector(0, 30, 0), Vector(0, 0, 1), 3.4),
    Part.Circle(Vector(-25.980762, -15, 0), Vector(0, 0, 1), 3.4),
], False)
sketch22.addConstraint([
    Sketcher.Constraint("Equal", 0, 1),
    Sketcher.Constraint("Equal", 1, 2),
    Sketcher.Constraint("Symmetric", 0, 3, 2, 3, -2),
    Sketcher.Constraint("PointOnObject", 1, 3, -2),
    Sketcher.Constraint("Diameter", 0, 6.8),
    Sketcher.Constraint("DistanceY", 0, 3, -1, 1, 15.0),
    Sketcher.Constraint("DistanceY", -1, 1, 1, 3, 30.0),
    Sketcher.Constraint("DistanceX", -1, 1, 0, 3, 25.980762),
])
pocket14 = doc.addObject("PartDesign::Pocket", "Pocket013")
body.addObject(pocket14)
pocket14.Profile = sketch22
pocket14.Length = 12
pocket14.Reversed = True

# Sketch on XY plane
sketch23 = doc.addObject("Sketcher::SketchObject", "Sketch022")
body.addObject(sketch23)
sketch23.AttachmentSupport = (doc.XY_Plane, [""])
sketch23.MapMode = "FlatFace"
sketch23.AttachmentOffset = App.Placement(Vector(0, 0, -6.15), App.Rotation())
sketch23.addGeometry([
    Part.Circle(Vector(0, 54, 0), Vector(0, 0, 1), 10.5),
    Part.Circle(Vector(-54, 0, 0), Vector(0, 0, 1), 10.5),
    Part.Circle(Vector(0, -54, 0), Vector(0, 0, 1), 10.5),
    Part.Circle(Vector(52.287205, 31.417323, 0), Vector(0, 0, 1), 11.3),
], False)
sketch23.addConstraint([
    Sketcher.Constraint("Equal", 0, 1),
    Sketcher.Constraint("Equal", 1, 2),
    Sketcher.Constraint("Symmetric", 0, 3, 2, 3, -1, 1),
    Sketcher.Constraint("PointOnObject", 0, 3, -2),
    Sketcher.Constraint("PointOnObject", 1, 3, -1),
    Sketcher.Constraint("Diameter", 0, 21.0),
    Sketcher.Constraint("Diameter", 3, 22.6),
    Sketcher.Constraint("DistanceY", -1, 1, 0, 3, 54.0),
    Sketcher.Constraint("DistanceX", 1, 3, -1, 1, 54.0),
    Sketcher.Constraint("DistanceX", -1, 1, 3, 3, 52.287205),
    Sketcher.Constraint("DistanceY", -1, 1, 3, 3, 31.417323),
])
pad9 = doc.addObject("PartDesign::Pad", "Pad008")
body.addObject(pad9)
pad9.Profile = sketch23
pad9.Length = 10.15

# Sketch on XY plane
sketch24 = doc.addObject("Sketcher::SketchObject", "Sketch023")
body.addObject(sketch24)
sketch24.AttachmentSupport = (doc.XY_Plane, [""])
sketch24.MapMode = "FlatFace"
sketch24.AttachmentOffset = App.Placement(Vector(0, 0, -12.1), App.Rotation())
sketch24.addGeometry([
    Part.Circle(Vector(0, 54, 0), Vector(0, 0, 1), 3.3),
    Part.Circle(Vector(-54, 0, 0), Vector(0, 0, 1), 3.3),
    Part.Circle(Vector(0, -54, 0), Vector(0, 0, 1), 3.3),
    Part.Circle(Vector(52.287205, 31.417323, 0), Vector(0, 0, 1), 3.3),
], False)
sketch24.addConstraint([
    Sketcher.Constraint("Equal", 0, 1),
    Sketcher.Constraint("Equal", 1, 2),
    Sketcher.Constraint("Equal", 2, 3),
    Sketcher.Constraint("Symmetric", 0, 3, 2, 3, -1, 1),
    Sketcher.Constraint("PointOnObject", 0, 3, -2),
    Sketcher.Constraint("PointOnObject", 1, 3, -1),
    Sketcher.Constraint("Diameter", 0, 6.6),
    Sketcher.Constraint("DistanceY", -1, 1, 0, 3, 54.0),
    Sketcher.Constraint("DistanceX", 1, 3, -1, 1, 54.0),
    Sketcher.Constraint("DistanceX", -1, 1, 3, 3, 52.287205),
    Sketcher.Constraint("DistanceY", -1, 1, 3, 3, 31.417323),
])
pocket15 = doc.addObject("PartDesign::Pocket", "Pocket014")
body.addObject(pocket15)
pocket15.Profile = sketch24
pocket15.Length = 16.2
pocket15.Reversed = True

# Sketch on XY plane
sketch25 = doc.addObject("Sketcher::SketchObject", "Sketch024")
body.addObject(sketch25)
sketch25.AttachmentSupport = (doc.XY_Plane, [""])
sketch25.MapMode = "FlatFace"
sketch25.AttachmentOffset = App.Placement(Vector(0, 0, -12.15), App.Rotation())
sketch25.addGeometry([
    Part.Circle(Vector(0, 54, 0), Vector(0, 0, 1), 6.15),
    Part.Circle(Vector(-54, 0, 0), Vector(0, 0, 1), 6.15),
    Part.Circle(Vector(0, -54, 0), Vector(0, 0, 1), 6.15),
], False)
sketch25.addConstraint([
    Sketcher.Constraint("Equal", 0, 1),
    Sketcher.Constraint("Equal", 1, 2),
    Sketcher.Constraint("Symmetric", 0, 3, 2, 3, -1, 1),
    Sketcher.Constraint("PointOnObject", 0, 3, -2),
    Sketcher.Constraint("PointOnObject", 1, 3, -1),
    Sketcher.Constraint("Diameter", 0, 12.3),
    Sketcher.Constraint("DistanceY", -1, 1, 0, 3, 54.0),
    Sketcher.Constraint("DistanceX", 1, 3, -1, 1, 54.0),
])
pocket16 = doc.addObject("PartDesign::Pocket", "Pocket015")
body.addObject(pocket16)
pocket16.Profile = sketch25
pocket16.Length = 10.15
pocket16.Reversed = True

# Sketch on XY plane
sketch26 = doc.addObject("Sketcher::SketchObject", "Sketch025")
body.addObject(sketch26)
sketch26.AttachmentSupport = (doc.XY_Plane, [""])
sketch26.MapMode = "FlatFace"
sketch26.AttachmentOffset = App.Placement(Vector(0, 0, -12.15), App.Rotation())
sketch26.addGeometry(Part.Circle(Vector(52.287205, 31.417323, 0), Vector(0, 0, 1), 7.3), False)
sketch26.addConstraint([
    Sketcher.Constraint("Diameter", 0, 14.6),
    Sketcher.Constraint("DistanceX", -1, 1, 0, 3, 52.287205),
    Sketcher.Constraint("DistanceY", -1, 1, 0, 3, 31.417323),
])
pocket17 = doc.addObject("PartDesign::Pocket", "Pocket016")
body.addObject(pocket17)
pocket17.Profile = sketch26
pocket17.Length = 10.15
pocket17.Reversed = True

# Sketch on XY plane
sketch27 = doc.addObject("Sketcher::SketchObject", "Sketch026")
body.addObject(sketch27)
sketch27.AttachmentSupport = (doc.XY_Plane, [""])
sketch27.MapMode = "FlatFace"
sketch27.AttachmentOffset = App.Placement(Vector(0, 0, 2.5), App.Rotation())
sketch27.addGeometry(Part.Circle(Vector(52.287205, 31.417323, 0), Vector(0, 0, 1), 8.15), False)
sketch27.addConstraint([
    Sketcher.Constraint("Diameter", 0, 16.3),
    Sketcher.Constraint("DistanceX", -1, 1, 0, 3, 52.287205),
    Sketcher.Constraint("DistanceY", -1, 1, 0, 3, 31.417323),
])
pocket18 = doc.addObject("PartDesign::Pocket", "Pocket017")
body.addObject(pocket18)
pocket18.Profile = sketch27
pocket18.Length = 1.6
pocket18.Reversed = True

doc.recompute()
